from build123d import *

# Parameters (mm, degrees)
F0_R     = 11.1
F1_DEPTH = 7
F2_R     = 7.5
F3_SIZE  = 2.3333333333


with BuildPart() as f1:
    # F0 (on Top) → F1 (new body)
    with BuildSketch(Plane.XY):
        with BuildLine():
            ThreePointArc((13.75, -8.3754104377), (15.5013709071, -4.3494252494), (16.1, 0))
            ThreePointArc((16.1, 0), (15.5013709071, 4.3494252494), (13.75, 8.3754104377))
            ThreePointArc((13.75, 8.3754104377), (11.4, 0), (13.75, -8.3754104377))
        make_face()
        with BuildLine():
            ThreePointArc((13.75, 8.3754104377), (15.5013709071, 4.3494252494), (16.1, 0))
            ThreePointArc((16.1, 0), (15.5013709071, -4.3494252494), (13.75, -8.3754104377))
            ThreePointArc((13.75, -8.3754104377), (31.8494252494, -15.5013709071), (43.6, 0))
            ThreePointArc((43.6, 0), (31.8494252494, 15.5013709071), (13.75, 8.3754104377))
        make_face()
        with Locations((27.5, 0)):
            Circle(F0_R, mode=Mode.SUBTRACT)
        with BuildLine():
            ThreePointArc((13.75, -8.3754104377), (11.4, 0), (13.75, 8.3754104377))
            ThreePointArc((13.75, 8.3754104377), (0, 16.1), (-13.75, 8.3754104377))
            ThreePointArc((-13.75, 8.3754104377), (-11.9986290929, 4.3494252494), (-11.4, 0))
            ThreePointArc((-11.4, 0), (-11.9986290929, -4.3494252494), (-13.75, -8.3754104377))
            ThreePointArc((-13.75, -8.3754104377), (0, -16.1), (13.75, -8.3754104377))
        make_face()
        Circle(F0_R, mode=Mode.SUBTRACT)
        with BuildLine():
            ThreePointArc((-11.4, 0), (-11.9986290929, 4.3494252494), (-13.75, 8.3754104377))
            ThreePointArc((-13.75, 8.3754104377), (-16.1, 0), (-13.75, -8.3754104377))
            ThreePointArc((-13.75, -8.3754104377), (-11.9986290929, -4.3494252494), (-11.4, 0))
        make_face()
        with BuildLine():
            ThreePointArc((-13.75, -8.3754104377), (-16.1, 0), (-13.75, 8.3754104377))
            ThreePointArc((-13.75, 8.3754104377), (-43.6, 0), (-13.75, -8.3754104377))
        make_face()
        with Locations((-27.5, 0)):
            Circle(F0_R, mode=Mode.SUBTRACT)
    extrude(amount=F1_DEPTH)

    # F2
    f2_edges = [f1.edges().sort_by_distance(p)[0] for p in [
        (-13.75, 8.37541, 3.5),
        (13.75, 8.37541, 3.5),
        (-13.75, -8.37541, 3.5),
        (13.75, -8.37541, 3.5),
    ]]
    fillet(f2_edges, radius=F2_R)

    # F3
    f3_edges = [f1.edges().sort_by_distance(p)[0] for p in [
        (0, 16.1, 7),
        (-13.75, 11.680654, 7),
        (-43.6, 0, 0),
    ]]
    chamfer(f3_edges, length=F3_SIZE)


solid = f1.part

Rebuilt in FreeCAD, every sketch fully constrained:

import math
import FreeCAD as App
import Part
import Sketcher

V = App.Vector


def edges_at(feature, points):
    """Names of the edges that pass closest to the given points."""
    edges = feature.Shape.Edges
    near = lambda p: min(range(len(edges)), key=lambda i: edges[i].distToShape(Part.Vertex(*p))[0])
    return sorted({f"Edge{near(p) + 1}" for p in points})

doc = App.newDocument("Part")
params = doc.addObject("Spreadsheet::Sheet", "Params")
for row, (alias, value) in enumerate([
    ("sketch1_diameter", "22.2 mm"),
    ("sketch1_radius", "16.1 mm"),
    ("pad1_length", "7 mm"),
    ("fillet_radius", "7.5 mm"),
    ("chamfer_size", "2.333333 mm"),
], start=1):
    params.set(f"A{row}", alias)
    params.set(f"B{row}", "=" + value)
    params.setAlias(f"B{row}", alias)

body = doc.addObject("PartDesign::Body", "Body")

sketch1 = body.newObject("Sketcher::SketchObject", "Sketch")
sketch1.AttachmentSupport = (doc.getObject("XY_Plane"), [""])
sketch1.MapMode = "FlatFace"
sketch1.addGeometry([
    Part.ArcOfCircle(Part.Circle(V(0, 0, 0), V(0, 0, 1), 16), math.radians(31), math.radians(149)),
    Part.ArcOfCircle(Part.Circle(V(-28, 0, 0), V(0, 0, 1), 16), math.radians(31), math.radians(329)),
    Part.ArcOfCircle(Part.Circle(V(0, 0, 0), V(0, 0, 1), 16), math.radians(-149), math.radians(-31)),
    Part.ArcOfCircle(Part.Circle(V(28, 0, 0), V(0, 0, 1), 16), math.radians(-149), math.radians(149)),
    Part.Circle(V(-28, 0, 0), V(0, 0, 1), 11),
    Part.Circle(V(0, 0, 0), V(0, 0, 1), 11),
    Part.Circle(V(28, 0, 0), V(0, 0, 1), 11),
], False)
sketch1.addConstraint([
    Sketcher.Constraint("Coincident", 0, 2, 1, 1),
    Sketcher.Constraint("Coincident", 1, 2, 2, 1),
    Sketcher.Constraint("Coincident", 2, 2, 3, 1),
    Sketcher.Constraint("Coincident", 3, 2, 0, 1),
    Sketcher.Constraint("Coincident", 0, 3, -1, 1),
    Sketcher.Constraint("Coincident", 2, 3, -1, 1),
    Sketcher.Constraint("Coincident", 5, 3, -1, 1),
    Sketcher.Constraint("Coincident", 4, 3, 1, 3),
    Sketcher.Constraint("Coincident", 6, 3, 3, 3),
    Sketcher.Constraint("Equal", 0, 1),
    Sketcher.Constraint("Equal", 1, 2),
    Sketcher.Constraint("Equal", 2, 3),
    Sketcher.Constraint("Equal", 4, 5),
    Sketcher.Constraint("Equal", 5, 6),
    Sketcher.Constraint("Symmetric", 1, 3, 3, 3, -1, 1),
    Sketcher.Constraint("PointOnObject", 1, 3, -1),
    Sketcher.Constraint("Diameter", 4, 22.2),
    Sketcher.Constraint("Radius", 0, 16.1),
    Sketcher.Constraint("DistanceX", 1, 3, 3, 3, 55.0),
])
sketch1.setExpression("Constraints[16]", "Params.sketch1_diameter")
sketch1.setExpression("Constraints[17]", "Params.sketch1_radius")
pad1 = body.newObject("PartDesign::Pad", "Pad")
pad1.Profile = sketch1
pad1.setExpression("Length", "Params.pad1_length")
doc.recompute()

fillet = body.newObject("PartDesign::Fillet", "Fillet")
fillet.Base = (pad1, edges_at(pad1, [
    (-13.75, 8.375, 3.5),
    (13.75, 8.375, 3.5),
    (-13.75, -8.375, 3.5),
    (13.75, -8.375, 3.5),
]))
fillet.setExpression("Radius", "Params.fillet_radius")
doc.recompute()

chamfer = body.newObject("PartDesign::Chamfer", "Chamfer")
chamfer.Base = (fillet, edges_at(fillet, [(0, 16.1, 7), (-13.75, 11.681, 7), (-43.6, 0, 0)]))
chamfer.setExpression("Size", "Params.chamfer_size")

doc.recompute()
